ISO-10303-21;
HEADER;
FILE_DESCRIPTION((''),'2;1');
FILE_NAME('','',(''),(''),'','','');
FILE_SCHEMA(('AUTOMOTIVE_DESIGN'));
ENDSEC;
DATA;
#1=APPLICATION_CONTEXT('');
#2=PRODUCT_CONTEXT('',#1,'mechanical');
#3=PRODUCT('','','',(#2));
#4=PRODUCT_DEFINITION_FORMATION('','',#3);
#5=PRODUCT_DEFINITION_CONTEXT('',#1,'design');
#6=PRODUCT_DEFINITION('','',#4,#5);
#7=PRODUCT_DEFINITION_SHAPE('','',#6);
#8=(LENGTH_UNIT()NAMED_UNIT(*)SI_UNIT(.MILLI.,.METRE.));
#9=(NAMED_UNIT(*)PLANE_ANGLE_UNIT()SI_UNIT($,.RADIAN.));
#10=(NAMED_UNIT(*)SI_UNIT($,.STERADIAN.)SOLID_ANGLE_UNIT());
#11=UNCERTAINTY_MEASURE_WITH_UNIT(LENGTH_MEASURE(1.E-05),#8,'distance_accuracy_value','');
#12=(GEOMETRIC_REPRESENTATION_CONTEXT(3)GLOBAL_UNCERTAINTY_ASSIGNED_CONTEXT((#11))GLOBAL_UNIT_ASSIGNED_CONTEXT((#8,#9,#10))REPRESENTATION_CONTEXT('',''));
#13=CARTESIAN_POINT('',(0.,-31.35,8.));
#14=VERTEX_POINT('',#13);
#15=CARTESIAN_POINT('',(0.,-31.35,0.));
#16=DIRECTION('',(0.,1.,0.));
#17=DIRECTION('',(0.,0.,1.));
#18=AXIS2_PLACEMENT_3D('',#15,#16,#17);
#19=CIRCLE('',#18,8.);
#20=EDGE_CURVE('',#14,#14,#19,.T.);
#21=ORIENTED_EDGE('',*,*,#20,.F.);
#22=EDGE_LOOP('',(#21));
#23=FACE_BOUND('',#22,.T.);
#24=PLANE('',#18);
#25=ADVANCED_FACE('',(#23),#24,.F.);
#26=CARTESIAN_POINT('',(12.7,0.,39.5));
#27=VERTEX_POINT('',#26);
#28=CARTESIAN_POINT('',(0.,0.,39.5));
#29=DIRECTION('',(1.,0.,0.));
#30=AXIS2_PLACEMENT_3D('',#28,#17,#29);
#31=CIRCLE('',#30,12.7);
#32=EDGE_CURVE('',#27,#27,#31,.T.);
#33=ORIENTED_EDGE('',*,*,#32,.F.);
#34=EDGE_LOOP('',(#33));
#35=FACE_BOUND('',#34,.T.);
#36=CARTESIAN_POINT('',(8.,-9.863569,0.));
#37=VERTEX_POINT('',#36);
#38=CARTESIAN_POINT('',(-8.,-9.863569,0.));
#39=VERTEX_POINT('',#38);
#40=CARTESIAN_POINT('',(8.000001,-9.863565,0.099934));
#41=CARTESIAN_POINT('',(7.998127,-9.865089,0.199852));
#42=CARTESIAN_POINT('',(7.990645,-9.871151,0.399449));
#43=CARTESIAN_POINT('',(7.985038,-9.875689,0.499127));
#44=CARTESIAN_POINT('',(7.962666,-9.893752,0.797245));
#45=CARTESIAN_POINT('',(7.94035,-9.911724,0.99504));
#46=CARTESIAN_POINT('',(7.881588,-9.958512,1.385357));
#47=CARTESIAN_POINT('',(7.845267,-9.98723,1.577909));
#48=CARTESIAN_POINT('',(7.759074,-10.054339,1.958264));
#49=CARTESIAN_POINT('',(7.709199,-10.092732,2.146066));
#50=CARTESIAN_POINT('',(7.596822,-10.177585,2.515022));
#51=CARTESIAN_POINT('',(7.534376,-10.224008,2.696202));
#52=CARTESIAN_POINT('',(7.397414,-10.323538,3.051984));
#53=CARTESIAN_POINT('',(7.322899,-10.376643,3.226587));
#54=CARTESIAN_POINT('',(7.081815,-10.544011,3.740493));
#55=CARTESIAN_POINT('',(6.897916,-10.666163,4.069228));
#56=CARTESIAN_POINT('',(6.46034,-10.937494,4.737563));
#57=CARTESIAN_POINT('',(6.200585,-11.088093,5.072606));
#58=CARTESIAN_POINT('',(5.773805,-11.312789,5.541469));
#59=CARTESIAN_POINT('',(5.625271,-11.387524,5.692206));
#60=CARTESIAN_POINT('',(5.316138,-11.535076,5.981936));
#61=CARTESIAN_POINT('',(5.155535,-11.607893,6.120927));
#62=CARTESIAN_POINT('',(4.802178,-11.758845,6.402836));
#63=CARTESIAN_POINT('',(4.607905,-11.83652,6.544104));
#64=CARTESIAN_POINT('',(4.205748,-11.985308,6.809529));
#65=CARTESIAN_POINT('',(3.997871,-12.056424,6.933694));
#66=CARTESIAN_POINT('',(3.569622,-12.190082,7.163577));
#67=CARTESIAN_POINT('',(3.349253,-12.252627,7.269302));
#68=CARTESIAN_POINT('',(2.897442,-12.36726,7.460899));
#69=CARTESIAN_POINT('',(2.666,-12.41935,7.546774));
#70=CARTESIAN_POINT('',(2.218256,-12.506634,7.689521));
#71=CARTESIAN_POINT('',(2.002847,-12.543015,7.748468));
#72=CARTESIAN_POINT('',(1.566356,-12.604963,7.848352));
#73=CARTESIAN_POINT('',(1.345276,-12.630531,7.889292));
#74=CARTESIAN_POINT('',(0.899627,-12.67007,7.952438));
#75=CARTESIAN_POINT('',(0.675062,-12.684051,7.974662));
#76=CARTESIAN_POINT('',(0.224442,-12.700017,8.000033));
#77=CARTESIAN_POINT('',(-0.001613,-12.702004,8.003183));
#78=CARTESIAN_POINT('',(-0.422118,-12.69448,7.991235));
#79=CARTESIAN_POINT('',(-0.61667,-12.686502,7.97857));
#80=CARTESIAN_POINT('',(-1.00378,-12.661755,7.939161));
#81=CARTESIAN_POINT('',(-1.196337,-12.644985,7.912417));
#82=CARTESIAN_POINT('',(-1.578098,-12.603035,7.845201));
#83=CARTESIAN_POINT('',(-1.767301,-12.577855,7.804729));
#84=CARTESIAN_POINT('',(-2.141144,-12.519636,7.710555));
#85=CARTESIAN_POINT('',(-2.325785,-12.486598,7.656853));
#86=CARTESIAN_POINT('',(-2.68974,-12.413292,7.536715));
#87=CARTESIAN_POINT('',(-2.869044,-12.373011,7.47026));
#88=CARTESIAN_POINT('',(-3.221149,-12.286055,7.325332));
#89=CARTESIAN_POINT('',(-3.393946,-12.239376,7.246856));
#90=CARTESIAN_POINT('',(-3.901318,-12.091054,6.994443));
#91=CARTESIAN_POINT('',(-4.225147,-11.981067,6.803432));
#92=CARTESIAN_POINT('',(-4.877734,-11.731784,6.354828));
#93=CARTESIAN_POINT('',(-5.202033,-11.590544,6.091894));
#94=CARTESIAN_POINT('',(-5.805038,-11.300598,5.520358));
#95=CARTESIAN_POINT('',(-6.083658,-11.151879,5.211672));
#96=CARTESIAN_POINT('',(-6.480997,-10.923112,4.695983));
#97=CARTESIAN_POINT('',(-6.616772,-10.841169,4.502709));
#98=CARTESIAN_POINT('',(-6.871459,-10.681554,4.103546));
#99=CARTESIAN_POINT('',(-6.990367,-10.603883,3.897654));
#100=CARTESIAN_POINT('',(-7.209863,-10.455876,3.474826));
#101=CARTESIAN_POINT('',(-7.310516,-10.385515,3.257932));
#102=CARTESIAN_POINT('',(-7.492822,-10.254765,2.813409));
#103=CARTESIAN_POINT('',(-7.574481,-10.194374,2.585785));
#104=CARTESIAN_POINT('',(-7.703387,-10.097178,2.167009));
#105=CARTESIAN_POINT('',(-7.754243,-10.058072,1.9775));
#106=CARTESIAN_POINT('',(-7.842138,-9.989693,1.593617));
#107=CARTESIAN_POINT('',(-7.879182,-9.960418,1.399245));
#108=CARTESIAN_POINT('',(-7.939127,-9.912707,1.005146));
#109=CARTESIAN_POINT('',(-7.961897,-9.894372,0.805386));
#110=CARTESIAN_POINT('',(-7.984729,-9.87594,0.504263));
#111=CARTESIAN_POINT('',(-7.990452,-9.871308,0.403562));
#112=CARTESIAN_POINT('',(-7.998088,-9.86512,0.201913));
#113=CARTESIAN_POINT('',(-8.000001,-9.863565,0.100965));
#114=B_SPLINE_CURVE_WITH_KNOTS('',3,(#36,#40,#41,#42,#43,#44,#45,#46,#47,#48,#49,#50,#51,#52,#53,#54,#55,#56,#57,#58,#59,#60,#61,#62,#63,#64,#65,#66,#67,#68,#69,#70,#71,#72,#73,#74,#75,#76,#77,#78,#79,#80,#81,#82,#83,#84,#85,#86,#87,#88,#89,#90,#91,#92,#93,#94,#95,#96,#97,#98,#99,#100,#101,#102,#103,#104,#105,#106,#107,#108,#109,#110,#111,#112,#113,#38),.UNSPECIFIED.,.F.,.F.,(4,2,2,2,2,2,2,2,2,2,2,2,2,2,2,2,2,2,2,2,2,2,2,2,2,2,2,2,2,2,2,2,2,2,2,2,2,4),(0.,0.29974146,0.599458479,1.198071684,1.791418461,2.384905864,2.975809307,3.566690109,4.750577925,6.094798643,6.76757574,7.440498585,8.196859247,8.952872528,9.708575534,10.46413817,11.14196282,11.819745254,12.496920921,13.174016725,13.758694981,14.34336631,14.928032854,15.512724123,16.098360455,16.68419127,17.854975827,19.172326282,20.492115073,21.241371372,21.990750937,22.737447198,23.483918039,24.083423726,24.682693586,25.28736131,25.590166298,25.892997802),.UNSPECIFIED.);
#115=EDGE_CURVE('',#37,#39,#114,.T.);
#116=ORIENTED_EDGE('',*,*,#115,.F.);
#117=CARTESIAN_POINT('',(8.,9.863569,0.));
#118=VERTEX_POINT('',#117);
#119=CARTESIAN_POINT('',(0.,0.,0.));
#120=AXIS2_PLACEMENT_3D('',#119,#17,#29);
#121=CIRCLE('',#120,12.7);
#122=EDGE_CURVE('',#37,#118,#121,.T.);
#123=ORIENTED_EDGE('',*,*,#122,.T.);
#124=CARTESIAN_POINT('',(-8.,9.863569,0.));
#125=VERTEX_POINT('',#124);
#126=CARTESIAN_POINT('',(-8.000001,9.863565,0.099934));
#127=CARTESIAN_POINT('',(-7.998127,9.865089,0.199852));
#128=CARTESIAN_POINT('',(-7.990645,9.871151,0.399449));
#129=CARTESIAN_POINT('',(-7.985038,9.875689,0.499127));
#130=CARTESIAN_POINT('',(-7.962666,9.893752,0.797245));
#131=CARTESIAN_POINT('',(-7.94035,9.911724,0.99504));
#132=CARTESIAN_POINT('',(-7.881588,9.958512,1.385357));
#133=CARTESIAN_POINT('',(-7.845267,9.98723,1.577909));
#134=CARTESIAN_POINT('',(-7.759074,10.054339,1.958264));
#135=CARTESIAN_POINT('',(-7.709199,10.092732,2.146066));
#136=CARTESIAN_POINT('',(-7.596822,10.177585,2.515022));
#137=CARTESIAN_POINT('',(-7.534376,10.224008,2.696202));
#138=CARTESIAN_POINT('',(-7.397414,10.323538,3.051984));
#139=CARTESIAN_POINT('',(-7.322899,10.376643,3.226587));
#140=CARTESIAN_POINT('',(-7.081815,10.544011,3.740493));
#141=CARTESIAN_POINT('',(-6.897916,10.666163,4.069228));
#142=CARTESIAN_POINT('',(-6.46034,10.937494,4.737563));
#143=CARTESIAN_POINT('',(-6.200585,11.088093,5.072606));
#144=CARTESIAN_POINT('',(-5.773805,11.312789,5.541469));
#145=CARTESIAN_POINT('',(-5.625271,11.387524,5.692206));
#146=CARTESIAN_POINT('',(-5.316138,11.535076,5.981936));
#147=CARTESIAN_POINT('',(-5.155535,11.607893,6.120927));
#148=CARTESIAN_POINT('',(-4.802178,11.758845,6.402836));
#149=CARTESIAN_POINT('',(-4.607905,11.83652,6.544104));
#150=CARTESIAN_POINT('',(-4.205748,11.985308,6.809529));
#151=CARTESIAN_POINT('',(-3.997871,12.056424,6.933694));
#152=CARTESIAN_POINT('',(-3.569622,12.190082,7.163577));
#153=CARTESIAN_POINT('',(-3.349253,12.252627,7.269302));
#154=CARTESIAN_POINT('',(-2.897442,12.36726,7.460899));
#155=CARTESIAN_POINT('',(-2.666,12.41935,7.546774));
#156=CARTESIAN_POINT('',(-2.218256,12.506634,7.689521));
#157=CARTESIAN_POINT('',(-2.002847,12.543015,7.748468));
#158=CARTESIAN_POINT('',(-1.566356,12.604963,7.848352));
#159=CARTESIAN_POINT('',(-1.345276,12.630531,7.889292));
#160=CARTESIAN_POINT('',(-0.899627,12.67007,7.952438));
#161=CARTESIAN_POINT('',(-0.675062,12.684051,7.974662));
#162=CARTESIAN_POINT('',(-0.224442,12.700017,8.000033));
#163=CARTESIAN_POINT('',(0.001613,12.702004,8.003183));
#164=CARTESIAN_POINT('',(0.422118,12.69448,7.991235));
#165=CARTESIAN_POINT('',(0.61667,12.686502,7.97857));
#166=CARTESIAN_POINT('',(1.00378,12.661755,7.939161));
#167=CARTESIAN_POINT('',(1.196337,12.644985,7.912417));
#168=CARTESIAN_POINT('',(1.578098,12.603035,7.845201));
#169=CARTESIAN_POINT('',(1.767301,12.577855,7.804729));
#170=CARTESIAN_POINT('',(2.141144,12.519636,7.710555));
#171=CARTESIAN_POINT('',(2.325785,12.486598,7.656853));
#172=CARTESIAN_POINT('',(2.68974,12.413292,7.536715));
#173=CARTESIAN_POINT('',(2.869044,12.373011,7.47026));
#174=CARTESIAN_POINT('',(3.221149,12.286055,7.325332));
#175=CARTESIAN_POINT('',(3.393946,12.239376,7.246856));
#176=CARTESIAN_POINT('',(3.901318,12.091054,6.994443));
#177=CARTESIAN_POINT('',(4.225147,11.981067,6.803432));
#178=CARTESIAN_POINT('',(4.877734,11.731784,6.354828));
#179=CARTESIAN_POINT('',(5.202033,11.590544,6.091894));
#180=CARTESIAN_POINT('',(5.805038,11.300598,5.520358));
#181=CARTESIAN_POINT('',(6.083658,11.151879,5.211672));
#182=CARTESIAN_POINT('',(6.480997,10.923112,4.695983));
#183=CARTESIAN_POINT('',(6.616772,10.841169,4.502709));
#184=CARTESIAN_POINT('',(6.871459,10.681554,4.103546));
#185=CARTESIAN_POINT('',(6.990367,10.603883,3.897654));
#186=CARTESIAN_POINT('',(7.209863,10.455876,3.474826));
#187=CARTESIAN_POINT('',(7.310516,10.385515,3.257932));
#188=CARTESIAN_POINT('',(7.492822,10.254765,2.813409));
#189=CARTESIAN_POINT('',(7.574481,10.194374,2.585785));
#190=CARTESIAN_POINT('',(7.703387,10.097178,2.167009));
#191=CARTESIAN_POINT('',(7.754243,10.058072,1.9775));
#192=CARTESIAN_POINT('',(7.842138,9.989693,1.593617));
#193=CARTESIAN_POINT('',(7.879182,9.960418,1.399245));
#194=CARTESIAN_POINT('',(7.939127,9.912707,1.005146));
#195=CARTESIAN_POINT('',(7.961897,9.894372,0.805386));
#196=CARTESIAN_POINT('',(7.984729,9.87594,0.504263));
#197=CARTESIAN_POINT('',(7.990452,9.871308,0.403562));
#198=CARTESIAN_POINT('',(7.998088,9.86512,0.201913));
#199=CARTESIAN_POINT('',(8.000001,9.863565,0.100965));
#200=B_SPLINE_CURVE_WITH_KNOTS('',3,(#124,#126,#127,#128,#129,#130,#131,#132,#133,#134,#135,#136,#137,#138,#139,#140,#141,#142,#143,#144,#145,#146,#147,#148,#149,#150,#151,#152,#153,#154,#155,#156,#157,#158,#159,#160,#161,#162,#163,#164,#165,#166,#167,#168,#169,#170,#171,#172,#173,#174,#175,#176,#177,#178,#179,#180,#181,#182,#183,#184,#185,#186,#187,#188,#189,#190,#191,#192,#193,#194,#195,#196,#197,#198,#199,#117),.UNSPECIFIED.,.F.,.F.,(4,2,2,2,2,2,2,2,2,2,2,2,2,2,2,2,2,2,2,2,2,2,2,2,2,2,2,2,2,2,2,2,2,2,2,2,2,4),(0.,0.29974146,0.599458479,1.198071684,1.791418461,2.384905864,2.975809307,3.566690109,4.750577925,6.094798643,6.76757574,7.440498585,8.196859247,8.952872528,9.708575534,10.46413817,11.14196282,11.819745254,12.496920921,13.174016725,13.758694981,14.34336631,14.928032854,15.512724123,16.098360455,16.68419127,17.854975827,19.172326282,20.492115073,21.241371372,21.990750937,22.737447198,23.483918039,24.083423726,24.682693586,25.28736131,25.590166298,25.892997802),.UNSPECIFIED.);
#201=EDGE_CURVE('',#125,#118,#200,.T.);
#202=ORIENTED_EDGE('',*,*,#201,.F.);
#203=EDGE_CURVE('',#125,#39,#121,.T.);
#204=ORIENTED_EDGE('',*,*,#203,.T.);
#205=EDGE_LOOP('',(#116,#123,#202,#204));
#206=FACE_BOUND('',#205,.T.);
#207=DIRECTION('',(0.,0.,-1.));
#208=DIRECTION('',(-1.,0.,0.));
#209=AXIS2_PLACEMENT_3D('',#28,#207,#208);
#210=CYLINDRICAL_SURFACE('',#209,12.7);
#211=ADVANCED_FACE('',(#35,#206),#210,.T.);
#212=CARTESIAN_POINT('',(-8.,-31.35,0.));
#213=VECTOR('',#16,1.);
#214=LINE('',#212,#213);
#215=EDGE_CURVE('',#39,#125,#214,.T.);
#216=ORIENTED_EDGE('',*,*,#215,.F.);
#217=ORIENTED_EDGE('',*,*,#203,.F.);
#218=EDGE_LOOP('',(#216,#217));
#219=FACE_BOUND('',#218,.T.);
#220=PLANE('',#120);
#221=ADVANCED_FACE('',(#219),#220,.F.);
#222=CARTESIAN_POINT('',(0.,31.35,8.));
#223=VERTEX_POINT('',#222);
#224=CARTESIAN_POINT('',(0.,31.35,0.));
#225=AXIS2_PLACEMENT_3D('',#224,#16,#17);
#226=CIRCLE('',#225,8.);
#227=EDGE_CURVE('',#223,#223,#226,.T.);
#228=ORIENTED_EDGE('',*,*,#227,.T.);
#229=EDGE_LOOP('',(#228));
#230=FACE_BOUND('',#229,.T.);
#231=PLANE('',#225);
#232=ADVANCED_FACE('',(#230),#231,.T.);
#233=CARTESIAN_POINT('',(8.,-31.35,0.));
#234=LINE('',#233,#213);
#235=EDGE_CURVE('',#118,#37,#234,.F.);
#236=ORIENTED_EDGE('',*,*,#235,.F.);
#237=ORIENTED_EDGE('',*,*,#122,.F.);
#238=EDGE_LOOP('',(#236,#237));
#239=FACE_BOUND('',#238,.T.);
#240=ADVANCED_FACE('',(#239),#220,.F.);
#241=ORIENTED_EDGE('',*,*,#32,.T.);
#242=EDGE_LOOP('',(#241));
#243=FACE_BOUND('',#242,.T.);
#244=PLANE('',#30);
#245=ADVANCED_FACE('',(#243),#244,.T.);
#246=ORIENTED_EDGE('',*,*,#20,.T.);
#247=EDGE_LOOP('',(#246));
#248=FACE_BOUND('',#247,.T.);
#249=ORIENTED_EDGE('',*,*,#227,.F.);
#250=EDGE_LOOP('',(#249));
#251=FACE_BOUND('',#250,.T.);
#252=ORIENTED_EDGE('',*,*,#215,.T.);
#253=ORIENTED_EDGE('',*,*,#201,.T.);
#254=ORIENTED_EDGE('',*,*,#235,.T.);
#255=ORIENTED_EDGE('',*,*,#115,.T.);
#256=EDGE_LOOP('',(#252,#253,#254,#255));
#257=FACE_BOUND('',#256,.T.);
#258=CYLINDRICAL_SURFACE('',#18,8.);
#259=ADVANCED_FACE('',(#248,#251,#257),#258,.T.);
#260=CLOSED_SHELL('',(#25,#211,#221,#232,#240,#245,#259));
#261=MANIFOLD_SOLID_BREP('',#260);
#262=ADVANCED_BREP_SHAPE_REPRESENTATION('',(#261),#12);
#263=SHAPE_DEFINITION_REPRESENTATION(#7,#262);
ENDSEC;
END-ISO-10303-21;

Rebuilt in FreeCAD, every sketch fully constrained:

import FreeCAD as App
import Part
import Sketcher
from FreeCAD import Vector
Q = App.Units.Quantity

doc = App.newDocument("Part")
body = doc.addObject("PartDesign::Body", "Body")

sketch1 = body.newObject("Sketcher::SketchObject", "Sketch")
sketch1.AttachmentSupport = (doc.getObject("XZ_Plane"), [""])
sketch1.MapMode = "FlatFace"
sketch1.addGeometry(Part.Circle(Vector(0, 0, 0), Vector(0, 0, 1), 8), False)
sketch1.addConstraint(Sketcher.Constraint("Coincident", 0, 3, -1, 1))
sketch1.addConstraint(Sketcher.Constraint("Diameter", 0, Q("16 mm")))
pad1 = body.newObject("PartDesign::Pad", "Pad")
pad1.Profile = sketch1
pad1.Type = "TwoLengths"
pad1.Length = 31.35
pad1.Length2 = 31.35
pad1.Reversed = True

sketch2 = body.newObject("Sketcher::SketchObject", "Sketch001")
sketch2.AttachmentSupport = (doc.getObject("XY_Plane"), [""])
sketch2.MapMode = "FlatFace"
sketch2.addGeometry(Part.Circle(Vector(0, 0, 0), Vector(0, 0, 1), 13), False)
sketch2.addConstraint(Sketcher.Constraint("Coincident", 0, 3, -1, 1))
sketch2.addConstraint(Sketcher.Constraint("Diameter", 0, Q("25.4 mm")))
pad2 = body.newObject("PartDesign::Pad", "Pad001")
pad2.Profile = sketch2
pad2.Length = 39.5

doc.recompute()
